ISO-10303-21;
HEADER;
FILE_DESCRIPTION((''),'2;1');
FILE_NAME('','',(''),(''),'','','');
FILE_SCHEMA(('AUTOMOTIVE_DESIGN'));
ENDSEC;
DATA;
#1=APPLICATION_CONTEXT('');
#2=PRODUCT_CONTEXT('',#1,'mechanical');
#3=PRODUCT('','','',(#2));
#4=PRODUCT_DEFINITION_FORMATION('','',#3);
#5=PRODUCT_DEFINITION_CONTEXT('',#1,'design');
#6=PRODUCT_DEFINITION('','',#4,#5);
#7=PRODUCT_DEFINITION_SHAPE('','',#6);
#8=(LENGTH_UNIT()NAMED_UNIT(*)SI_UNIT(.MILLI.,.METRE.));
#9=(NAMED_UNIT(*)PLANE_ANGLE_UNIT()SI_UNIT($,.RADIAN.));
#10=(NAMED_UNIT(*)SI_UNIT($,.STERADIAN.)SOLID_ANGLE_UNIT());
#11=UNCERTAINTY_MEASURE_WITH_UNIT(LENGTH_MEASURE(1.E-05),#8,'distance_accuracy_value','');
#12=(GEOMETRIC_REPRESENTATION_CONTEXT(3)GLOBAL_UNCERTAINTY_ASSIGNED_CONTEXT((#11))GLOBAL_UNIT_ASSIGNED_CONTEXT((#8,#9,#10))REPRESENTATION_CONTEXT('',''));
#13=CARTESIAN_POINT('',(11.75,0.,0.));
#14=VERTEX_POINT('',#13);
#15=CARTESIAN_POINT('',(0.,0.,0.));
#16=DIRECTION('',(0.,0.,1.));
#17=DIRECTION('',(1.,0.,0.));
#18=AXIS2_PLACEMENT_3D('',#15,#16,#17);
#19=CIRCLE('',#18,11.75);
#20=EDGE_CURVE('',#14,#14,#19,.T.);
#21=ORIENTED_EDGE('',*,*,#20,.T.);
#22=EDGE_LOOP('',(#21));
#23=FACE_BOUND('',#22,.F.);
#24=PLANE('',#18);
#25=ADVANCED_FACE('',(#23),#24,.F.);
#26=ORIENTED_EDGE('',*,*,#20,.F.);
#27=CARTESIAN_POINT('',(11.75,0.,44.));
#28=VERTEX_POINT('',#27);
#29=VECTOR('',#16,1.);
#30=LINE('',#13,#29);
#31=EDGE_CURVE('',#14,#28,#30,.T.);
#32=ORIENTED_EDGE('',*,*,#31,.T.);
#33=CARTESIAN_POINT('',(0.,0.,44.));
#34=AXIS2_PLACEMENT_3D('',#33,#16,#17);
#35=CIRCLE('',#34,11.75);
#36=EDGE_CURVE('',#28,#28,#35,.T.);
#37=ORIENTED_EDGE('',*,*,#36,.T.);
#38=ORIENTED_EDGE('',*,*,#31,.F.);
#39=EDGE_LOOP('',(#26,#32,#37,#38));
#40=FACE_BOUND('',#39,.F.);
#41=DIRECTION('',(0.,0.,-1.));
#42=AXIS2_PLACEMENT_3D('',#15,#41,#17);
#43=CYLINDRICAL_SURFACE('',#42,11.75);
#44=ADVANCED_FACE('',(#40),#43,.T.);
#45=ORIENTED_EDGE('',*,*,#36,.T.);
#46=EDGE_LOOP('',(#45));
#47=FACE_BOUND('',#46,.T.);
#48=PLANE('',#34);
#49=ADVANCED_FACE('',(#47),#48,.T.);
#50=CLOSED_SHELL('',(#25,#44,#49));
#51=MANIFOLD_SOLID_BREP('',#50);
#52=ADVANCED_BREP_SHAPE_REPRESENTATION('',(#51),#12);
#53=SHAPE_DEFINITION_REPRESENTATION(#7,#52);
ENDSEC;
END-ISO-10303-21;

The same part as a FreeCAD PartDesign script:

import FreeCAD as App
import Part
import Sketcher

doc = App.newDocument("Part")
body = doc.addObject("PartDesign::Body", "Body")

sketch1 = body.newObject("Sketcher::SketchObject", "Sketch")
sketch1.AttachmentSupport = (doc.getObject("XY_Plane"), [""])
sketch1.MapMode = "FlatFace"
sketch1.addGeometry(Part.Circle(App.Vector(0, 0, 0), App.Vector(0, 0, 1), 12), False)
sketch1.addConstraint([
    Sketcher.Constraint("Coincident", 0, 3, -1, 1),
    Sketcher.Constraint("Diameter", 0, 23.5),
])
pad1 = body.newObject("PartDesign::Pad", "Pad")
pad1.Profile = sketch1
pad1.Length = 44

doc.recompute()
